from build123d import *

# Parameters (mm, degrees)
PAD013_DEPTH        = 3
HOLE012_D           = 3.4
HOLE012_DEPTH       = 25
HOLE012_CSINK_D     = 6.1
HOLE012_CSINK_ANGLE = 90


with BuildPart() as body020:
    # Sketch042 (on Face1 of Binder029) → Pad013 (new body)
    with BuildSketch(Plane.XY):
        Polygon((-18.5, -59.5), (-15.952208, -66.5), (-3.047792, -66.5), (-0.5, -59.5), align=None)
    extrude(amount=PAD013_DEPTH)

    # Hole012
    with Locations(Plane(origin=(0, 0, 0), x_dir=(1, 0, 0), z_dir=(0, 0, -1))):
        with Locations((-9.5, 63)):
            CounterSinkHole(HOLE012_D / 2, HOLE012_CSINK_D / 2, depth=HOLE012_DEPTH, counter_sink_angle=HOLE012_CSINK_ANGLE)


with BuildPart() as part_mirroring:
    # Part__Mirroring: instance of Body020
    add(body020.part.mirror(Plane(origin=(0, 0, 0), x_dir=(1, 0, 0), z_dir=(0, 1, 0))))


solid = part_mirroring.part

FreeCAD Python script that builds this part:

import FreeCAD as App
import Part
import Sketcher

V = App.Vector
Q = App.Units.Quantity


def add_polygon(sketch, points):
    """Adds a closed chain of lines whose ends are joined by coincident constraints."""
    first, n = sketch.GeometryCount, len(points)
    for a, b in zip(points, points[1:] + points[:1]):
        sketch.addGeometry(Part.LineSegment(App.Vector(*a, 0), App.Vector(*b, 0)), False)
    for i in range(n):
        sketch.addConstraint(Sketcher.Constraint("Coincident", first + i, 2, first + (i + 1) % n, 1))

doc = App.newDocument("Part")
params = doc.addObject("Spreadsheet::Sheet", "Params")
for row, (alias, value) in enumerate([
    ("sketch1_width", "18 mm"),
    ("pad1_length", "3 mm"),
    ("sketch2_diameter", "3.4 mm"),
    ("hole_diameter", "3.4 mm"),
    ("hole_depth", "25 mm"),
    ("hole_csink_diameter", "6.1 mm"),
], start=1):
    params.set(f"A{row}", alias)
    params.set(f"B{row}", "=" + value)
    params.setAlias(f"B{row}", alias)

body = doc.addObject("PartDesign::Body", "Body")

# Sketch on XY plane
sketch1 = body.newObject("Sketcher::SketchObject", "Sketch")
sketch1.AttachmentSupport = (doc.getObject("XY_Plane"), [""])
sketch1.MapMode = "FlatFace"
add_polygon(sketch1, [(-18, -60), (-16, -66), (-3, -66), (0, -60)])  # lines 0-3
sketch1.addConstraint(Sketcher.Constraint("Horizontal", 1))
sketch1.addConstraint(Sketcher.Constraint("Horizontal", 3))
sketch1.addConstraint(Sketcher.Constraint("Equal", 0, 2))
sketch1.addConstraint(Sketcher.Constraint("DistanceX", 3, 2, 3, 1, 18.0))
sketch1.addConstraint(Sketcher.Constraint("Angle", 0, Q("-69.999997 deg")))
sketch1.addConstraint(Sketcher.Constraint("DistanceY", 1, 2, 2, 2, 7.0))
sketch1.addConstraint(Sketcher.Constraint("DistanceY", 0, 2, -1, 1, 66.5))
sketch1.addConstraint(Sketcher.Constraint("DistanceX", 2, 2, -1, 1, 0.5))
sketch1.setExpression("Constraints[7]", "Params.sketch1_width")
pad1 = body.newObject("PartDesign::Pad", "Pad")
pad1.Profile = sketch1
pad1.setExpression("Length", "Params.pad1_length")

# Sketch on XY plane
sketch2 = body.newObject("Sketcher::SketchObject", "Sketch001")
sketch2.AttachmentSupport = (doc.getObject("XY_Plane"), [""])
sketch2.MapMode = "FlatFace"
sketch2.addGeometry(Part.Circle(V(-9.5, -63, 0), V(0, 0, 1), 1.7), False)
sketch2.addConstraint(Sketcher.Constraint("Diameter", 0, 3.4))
sketch2.addConstraint(Sketcher.Constraint("DistanceY", 0, 3, -1, 1, 63.0))
sketch2.addConstraint(Sketcher.Constraint("DistanceX", 0, 3, -1, 1, 9.5))
sketch2.setExpression("Constraints[0]", "Params.sketch2_diameter")
doc.recompute()
hole = body.newObject("PartDesign::Hole", "Hole")
hole.Profile = sketch2
hole.ThreadType = "None"
hole.setExpression("Diameter", "Params.hole_diameter")
hole.DepthType = "Dimension"
hole.setExpression("Depth", "Params.hole_depth")
hole.DrillPoint = "Flat"
hole.HoleCutType = "Countersink"
hole.setExpression("HoleCutDiameter", "Params.hole_csink_diameter")
hole.HoleCutCountersinkAngle = 90
hole.Reversed = True
body2 = doc.addObject("PartDesign::Body", "Body001")
doc.recompute()

mirroring = doc.addObject("Part::Mirroring", "Mirroring")
mirroring.Source = body
mirroring.Base = V(0, 0, 0)
mirroring.Normal = V(0, 1, 0)
body2.BaseFeature = mirroring
doc.recompute()
body.Visibility = False
mirroring.Visibility = False

doc.recompute()
